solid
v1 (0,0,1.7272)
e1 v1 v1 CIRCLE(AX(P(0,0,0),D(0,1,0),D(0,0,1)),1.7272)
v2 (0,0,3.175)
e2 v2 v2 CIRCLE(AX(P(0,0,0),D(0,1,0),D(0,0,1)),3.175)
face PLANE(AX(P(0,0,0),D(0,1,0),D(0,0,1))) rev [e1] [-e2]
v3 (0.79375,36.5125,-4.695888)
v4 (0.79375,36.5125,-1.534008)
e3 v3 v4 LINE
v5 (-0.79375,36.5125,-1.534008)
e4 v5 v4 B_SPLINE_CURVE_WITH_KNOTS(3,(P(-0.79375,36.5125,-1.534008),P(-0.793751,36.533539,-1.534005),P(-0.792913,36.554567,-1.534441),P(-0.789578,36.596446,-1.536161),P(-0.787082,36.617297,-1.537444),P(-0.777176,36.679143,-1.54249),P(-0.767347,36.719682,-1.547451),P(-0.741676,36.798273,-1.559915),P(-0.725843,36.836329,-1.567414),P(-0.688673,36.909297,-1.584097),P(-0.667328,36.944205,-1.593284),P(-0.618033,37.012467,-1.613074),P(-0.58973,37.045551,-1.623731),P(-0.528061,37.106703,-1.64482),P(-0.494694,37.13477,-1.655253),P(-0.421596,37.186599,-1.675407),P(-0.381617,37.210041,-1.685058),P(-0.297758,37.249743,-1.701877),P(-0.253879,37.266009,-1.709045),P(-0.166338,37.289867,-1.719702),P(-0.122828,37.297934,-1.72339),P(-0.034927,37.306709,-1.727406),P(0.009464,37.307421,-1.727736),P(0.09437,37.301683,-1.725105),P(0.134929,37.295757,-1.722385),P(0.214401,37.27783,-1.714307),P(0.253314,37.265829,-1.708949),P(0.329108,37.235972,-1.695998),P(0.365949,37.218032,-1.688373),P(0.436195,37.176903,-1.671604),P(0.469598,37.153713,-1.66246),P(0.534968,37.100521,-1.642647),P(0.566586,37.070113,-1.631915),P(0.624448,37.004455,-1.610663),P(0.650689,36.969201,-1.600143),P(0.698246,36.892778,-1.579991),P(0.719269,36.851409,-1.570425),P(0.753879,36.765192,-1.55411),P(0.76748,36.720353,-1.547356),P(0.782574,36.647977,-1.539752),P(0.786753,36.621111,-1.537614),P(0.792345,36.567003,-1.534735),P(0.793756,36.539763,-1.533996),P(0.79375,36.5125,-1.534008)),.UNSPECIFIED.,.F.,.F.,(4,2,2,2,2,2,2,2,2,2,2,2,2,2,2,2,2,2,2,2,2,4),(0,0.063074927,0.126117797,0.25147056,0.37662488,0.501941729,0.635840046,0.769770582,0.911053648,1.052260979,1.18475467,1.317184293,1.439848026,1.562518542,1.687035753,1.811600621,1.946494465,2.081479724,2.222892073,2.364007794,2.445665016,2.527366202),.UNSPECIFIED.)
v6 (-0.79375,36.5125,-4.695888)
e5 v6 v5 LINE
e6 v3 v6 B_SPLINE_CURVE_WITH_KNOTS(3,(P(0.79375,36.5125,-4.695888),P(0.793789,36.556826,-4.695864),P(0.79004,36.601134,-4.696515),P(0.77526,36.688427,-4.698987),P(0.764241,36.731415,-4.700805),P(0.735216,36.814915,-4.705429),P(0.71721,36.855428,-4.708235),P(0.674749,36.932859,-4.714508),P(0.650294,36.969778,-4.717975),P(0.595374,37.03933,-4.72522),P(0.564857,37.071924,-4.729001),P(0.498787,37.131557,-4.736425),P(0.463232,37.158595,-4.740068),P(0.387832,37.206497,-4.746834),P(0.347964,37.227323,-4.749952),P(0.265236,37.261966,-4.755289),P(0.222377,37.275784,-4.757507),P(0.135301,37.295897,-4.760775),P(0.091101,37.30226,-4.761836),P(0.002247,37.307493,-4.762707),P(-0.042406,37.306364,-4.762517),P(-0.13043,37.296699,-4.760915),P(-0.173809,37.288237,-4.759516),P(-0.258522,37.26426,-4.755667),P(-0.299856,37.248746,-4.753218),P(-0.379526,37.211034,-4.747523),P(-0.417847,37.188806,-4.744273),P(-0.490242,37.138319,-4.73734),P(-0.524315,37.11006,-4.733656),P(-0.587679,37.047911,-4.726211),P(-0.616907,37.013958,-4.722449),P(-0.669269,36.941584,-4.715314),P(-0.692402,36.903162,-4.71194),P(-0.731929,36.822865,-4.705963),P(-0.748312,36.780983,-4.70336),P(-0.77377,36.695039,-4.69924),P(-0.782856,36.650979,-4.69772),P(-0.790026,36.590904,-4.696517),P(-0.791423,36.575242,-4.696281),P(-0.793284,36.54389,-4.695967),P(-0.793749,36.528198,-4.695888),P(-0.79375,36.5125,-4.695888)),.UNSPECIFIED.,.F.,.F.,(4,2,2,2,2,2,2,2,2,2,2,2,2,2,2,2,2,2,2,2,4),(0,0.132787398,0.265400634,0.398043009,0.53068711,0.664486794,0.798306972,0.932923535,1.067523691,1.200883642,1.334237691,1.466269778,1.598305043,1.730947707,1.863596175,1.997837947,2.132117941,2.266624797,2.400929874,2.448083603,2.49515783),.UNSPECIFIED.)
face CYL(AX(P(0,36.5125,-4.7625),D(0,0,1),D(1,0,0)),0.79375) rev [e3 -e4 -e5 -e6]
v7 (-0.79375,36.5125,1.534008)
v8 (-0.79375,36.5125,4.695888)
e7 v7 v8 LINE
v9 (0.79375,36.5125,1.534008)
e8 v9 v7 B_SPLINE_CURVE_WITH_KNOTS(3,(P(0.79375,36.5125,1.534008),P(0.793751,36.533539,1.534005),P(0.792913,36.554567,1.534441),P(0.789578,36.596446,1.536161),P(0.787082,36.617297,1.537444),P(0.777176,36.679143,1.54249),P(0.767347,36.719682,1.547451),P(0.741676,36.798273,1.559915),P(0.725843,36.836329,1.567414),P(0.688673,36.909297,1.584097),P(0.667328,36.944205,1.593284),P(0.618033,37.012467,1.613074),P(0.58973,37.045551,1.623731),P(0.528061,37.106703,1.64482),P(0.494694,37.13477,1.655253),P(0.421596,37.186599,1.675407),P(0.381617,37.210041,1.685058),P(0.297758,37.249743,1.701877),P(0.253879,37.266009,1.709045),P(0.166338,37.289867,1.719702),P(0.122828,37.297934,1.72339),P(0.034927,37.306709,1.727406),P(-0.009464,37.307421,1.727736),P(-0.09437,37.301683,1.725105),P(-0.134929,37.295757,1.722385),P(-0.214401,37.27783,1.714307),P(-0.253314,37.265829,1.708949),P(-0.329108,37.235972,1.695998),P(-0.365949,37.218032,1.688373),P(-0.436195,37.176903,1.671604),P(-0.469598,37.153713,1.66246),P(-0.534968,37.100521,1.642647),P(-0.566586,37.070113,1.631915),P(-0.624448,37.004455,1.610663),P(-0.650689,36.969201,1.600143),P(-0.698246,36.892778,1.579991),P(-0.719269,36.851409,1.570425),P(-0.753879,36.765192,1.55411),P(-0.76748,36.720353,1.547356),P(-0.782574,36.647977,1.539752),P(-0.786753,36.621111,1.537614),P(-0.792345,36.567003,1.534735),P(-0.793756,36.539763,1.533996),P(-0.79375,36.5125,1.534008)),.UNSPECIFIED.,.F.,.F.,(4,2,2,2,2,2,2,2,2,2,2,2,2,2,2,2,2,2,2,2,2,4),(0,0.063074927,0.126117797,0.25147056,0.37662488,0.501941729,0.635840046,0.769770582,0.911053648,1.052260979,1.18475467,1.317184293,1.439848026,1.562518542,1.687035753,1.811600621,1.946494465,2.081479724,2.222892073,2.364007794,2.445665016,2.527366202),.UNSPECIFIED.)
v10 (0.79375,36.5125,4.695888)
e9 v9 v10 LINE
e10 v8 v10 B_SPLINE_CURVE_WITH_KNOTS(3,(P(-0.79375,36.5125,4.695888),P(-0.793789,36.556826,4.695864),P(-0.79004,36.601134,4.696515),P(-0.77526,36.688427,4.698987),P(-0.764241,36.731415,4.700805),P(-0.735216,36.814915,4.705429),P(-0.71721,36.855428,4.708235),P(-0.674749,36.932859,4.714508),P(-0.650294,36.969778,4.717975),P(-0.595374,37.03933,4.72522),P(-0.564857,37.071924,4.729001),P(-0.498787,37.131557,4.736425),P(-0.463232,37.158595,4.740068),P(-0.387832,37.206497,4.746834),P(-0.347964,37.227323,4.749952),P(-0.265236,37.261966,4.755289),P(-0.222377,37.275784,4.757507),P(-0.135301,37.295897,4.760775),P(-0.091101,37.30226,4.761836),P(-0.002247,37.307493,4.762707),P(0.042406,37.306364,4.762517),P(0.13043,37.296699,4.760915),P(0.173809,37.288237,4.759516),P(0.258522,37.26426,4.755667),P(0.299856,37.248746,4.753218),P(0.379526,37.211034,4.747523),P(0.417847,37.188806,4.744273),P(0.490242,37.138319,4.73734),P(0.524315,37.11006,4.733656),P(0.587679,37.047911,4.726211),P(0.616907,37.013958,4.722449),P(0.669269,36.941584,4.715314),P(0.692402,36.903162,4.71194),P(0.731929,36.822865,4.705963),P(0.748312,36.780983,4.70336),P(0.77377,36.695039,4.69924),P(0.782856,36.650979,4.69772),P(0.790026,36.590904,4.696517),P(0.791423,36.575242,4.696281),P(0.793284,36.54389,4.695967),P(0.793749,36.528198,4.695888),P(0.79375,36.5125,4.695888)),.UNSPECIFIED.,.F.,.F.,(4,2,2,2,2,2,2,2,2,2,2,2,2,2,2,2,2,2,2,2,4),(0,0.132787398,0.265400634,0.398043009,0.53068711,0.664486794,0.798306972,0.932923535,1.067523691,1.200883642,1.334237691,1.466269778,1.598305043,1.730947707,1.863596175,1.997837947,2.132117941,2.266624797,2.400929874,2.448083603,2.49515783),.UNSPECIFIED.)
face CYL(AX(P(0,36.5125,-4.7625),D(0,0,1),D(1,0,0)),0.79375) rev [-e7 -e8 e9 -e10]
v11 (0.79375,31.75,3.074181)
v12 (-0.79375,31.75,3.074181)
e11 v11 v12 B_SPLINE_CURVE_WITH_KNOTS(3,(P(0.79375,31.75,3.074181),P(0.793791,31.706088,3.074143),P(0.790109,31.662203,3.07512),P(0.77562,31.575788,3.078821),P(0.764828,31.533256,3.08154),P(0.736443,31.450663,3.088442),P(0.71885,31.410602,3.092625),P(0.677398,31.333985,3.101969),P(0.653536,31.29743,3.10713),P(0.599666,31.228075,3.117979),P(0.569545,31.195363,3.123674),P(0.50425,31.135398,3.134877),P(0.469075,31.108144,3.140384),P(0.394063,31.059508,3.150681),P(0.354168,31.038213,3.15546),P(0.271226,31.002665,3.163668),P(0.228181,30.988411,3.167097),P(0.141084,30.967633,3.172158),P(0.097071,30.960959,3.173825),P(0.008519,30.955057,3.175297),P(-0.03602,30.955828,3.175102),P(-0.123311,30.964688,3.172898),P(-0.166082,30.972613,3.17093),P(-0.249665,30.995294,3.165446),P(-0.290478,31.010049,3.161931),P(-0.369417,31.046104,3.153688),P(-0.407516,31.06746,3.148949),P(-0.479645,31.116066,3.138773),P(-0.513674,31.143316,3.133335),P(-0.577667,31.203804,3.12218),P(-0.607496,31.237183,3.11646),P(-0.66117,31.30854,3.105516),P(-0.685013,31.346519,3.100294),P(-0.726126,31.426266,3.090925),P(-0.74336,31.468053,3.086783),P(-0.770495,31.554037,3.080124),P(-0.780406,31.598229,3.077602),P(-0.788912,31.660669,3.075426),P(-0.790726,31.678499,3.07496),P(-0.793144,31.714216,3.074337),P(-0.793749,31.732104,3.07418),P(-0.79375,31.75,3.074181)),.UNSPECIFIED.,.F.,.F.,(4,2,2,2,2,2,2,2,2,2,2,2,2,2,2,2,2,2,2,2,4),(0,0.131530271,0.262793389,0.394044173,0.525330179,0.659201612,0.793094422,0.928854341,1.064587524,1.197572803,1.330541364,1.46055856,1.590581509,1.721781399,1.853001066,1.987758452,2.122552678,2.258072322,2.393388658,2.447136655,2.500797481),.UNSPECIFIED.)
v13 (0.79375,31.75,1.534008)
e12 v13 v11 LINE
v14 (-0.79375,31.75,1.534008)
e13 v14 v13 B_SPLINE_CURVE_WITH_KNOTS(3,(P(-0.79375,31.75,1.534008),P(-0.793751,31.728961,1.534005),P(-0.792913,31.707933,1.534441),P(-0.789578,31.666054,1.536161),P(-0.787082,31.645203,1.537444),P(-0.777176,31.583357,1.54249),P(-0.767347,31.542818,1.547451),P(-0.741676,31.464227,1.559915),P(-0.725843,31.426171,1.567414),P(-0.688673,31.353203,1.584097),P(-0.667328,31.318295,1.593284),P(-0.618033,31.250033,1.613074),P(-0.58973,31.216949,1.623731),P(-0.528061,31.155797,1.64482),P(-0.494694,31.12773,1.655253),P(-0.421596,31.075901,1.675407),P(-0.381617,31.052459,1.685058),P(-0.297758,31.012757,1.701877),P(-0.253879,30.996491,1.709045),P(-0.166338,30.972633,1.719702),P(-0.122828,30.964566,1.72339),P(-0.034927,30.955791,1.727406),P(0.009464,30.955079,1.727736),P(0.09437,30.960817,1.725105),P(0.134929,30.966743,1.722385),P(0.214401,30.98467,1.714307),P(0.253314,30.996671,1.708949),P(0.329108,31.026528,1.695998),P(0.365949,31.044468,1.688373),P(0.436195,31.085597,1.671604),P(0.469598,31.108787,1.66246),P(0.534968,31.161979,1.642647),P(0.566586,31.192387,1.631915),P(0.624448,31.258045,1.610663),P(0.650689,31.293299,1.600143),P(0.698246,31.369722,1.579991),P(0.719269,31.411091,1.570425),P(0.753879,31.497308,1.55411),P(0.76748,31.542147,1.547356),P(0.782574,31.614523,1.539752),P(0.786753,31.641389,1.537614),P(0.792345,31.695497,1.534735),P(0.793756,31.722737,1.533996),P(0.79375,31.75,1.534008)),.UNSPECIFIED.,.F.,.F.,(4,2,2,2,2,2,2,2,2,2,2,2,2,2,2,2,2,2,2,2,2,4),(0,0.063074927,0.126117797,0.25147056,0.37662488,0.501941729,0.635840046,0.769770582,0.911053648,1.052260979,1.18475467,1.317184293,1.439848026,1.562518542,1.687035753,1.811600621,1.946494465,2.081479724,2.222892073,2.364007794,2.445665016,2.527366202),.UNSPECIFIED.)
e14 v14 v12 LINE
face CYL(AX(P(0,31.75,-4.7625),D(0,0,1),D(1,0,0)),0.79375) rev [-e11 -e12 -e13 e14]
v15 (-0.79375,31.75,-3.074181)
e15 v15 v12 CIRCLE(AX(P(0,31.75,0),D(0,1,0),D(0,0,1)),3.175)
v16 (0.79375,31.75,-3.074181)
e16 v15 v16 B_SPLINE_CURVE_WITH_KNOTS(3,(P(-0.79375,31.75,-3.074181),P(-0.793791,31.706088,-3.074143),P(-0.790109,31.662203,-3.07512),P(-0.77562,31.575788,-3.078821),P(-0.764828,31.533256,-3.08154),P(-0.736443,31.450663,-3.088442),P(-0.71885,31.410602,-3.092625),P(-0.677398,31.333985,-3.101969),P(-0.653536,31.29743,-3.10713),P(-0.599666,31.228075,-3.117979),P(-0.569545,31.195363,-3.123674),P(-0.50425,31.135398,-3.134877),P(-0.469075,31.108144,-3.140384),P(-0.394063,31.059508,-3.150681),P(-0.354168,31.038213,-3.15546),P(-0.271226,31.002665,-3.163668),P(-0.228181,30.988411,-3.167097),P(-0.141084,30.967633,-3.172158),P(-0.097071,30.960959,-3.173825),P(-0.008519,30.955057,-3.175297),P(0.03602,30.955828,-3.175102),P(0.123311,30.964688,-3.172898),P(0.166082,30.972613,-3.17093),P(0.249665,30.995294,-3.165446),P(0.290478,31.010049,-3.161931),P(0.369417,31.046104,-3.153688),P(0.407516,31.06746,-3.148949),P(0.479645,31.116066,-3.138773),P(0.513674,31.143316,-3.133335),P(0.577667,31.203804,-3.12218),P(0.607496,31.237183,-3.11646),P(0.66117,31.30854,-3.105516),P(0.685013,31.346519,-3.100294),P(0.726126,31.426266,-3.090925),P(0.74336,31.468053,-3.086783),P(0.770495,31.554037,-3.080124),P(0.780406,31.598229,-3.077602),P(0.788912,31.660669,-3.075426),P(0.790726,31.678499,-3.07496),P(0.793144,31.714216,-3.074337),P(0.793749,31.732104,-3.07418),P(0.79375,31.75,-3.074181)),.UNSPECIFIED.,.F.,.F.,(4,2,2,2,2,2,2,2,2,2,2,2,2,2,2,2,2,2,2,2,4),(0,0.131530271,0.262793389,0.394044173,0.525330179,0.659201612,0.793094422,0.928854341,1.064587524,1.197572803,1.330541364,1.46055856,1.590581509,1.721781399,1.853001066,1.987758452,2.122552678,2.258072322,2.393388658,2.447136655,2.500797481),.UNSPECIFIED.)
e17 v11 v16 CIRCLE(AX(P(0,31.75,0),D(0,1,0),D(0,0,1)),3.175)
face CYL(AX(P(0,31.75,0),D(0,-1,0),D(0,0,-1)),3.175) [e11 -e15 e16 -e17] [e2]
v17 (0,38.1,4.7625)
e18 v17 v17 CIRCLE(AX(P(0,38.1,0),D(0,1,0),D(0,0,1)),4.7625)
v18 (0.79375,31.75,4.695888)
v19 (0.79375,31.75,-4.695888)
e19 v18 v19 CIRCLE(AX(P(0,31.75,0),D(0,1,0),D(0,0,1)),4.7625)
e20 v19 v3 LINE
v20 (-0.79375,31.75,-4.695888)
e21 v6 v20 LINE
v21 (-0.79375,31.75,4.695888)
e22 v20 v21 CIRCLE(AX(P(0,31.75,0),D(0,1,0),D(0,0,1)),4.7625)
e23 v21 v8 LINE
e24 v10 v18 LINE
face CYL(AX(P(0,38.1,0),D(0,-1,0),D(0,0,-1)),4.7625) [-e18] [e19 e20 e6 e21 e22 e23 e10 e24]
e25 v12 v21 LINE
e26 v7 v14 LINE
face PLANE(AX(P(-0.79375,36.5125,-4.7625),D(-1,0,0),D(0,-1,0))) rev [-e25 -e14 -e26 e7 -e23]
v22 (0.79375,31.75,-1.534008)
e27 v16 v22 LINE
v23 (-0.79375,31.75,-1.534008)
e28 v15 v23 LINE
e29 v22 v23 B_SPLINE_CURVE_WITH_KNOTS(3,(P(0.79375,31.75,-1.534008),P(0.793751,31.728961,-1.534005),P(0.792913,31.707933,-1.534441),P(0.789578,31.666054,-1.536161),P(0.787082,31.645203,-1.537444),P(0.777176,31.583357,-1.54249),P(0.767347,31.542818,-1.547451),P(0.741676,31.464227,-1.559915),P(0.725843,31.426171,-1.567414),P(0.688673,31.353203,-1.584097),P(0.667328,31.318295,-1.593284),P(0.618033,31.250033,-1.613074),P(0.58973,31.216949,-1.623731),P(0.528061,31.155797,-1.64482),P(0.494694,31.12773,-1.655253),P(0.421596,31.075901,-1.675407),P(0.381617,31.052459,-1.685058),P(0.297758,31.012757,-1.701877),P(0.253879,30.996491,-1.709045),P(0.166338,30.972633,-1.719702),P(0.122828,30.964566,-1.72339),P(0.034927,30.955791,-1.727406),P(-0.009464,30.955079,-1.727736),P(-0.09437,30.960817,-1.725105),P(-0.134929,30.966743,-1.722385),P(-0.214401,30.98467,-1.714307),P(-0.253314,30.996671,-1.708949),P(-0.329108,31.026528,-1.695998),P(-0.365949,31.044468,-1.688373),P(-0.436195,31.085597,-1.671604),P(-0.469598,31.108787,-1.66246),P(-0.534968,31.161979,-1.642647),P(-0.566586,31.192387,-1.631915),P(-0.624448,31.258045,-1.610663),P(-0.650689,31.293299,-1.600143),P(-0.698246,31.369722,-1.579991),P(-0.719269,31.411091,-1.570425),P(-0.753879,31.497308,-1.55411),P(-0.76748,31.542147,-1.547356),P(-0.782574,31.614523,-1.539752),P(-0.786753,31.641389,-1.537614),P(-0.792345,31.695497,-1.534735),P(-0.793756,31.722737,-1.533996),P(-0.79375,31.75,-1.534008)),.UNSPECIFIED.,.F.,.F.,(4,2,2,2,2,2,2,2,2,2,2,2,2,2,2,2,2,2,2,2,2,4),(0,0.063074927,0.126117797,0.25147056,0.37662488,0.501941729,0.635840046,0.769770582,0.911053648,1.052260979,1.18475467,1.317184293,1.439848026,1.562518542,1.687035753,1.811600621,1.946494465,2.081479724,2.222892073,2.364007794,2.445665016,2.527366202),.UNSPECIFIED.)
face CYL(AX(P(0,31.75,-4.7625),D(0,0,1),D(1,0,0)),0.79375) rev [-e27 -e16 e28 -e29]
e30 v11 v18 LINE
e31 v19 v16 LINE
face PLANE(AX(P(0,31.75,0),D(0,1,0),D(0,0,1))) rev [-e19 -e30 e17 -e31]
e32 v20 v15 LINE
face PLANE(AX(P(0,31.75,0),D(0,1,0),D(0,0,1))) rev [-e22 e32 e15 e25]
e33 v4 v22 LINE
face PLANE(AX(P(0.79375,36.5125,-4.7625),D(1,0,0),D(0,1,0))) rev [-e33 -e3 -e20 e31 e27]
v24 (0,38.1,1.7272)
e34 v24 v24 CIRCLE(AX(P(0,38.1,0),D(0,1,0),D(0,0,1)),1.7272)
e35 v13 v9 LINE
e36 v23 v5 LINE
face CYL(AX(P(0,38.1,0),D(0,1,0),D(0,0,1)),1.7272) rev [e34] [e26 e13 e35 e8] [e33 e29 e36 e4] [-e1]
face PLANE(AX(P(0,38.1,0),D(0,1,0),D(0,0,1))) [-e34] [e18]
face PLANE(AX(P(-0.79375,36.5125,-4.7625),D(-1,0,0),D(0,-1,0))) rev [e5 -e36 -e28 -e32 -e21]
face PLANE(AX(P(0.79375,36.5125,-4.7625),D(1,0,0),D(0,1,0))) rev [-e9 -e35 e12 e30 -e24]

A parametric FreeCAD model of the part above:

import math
import FreeCAD as App
import Part
import Sketcher
from FreeCAD import Vector
Q = App.Units.Quantity

doc = App.newDocument("Part")
body = doc.addObject("PartDesign::Body", "Body")

# Sketch on XZ plane
sketch1 = doc.addObject("Sketcher::SketchObject", "Sketch")
body.addObject(sketch1)
sketch1.AttachmentSupport = (doc.XZ_Plane, [""])
sketch1.MapMode = "FlatFace"
sketch1.addGeometry(Part.Circle(Vector(0, 0, 0), Vector(0, 0, 1), 3.2), False)
sketch1.addConstraint(Sketcher.Constraint("Coincident", 0, 3, -1, 1))
sketch1.addConstraint(Sketcher.Constraint("Diameter", 0, Q("0.25 in")))
pad1 = doc.addObject("PartDesign::Pad", "Pad")
body.addObject(pad1)
pad1.Profile = sketch1
pad1.Length = Q("1.25 in")
pad1.Reversed = True

# Sketch on XZ plane
sketch2 = doc.addObject("Sketcher::SketchObject", "Sketch001")
body.addObject(sketch2)
sketch2.AttachmentSupport = (doc.XZ_Plane, [""])
sketch2.MapMode = "FlatFace"
sketch2.AttachmentOffset = App.Placement(Vector(0, 0, -1.25 * 25.4), App.Rotation())
sketch2.addGeometry(Part.Circle(Vector(0, 0, 0), Vector(0, 0, 1), 4.8), False)
sketch2.addConstraint(Sketcher.Constraint("Coincident", 0, 3, -1, 1))
sketch2.addConstraint(Sketcher.Constraint("Diameter", 0, Q("0.375 in")))
pad2 = doc.addObject("PartDesign::Pad", "Pad001")
body.addObject(pad2)
pad2.Profile = sketch2
pad2.Length = Q("0.25 in")
pad2.Reversed = True

# Sketch on XZ plane
sketch3 = doc.addObject("Sketcher::SketchObject", "Sketch002")
body.addObject(sketch3)
sketch3.AttachmentSupport = (doc.XZ_Plane, [""])
sketch3.MapMode = "FlatFace"
sketch3.AttachmentOffset = App.Placement(Vector(0, 0, -1.5 * 25.4), App.Rotation())
sketch3.addGeometry(Part.Circle(Vector(0, 0, 0), Vector(0, 0, 1), 1.7), False)
sketch3.addConstraint(Sketcher.Constraint("Coincident", 0, 3, -1, 1))
sketch3.addConstraint(Sketcher.Constraint("Diameter", 0, Q("0.136 in")))
doc.recompute()
hole = doc.addObject("PartDesign::Hole", "Hole")
body.addObject(hole)
hole.Profile = sketch3
hole.ThreadType = "None"
hole.Diameter = Q("0.136 in")
hole.DepthType = "ThroughAll"
hole.Reversed = True

# Sketch on XY plane
sketch4 = doc.addObject("Sketcher::SketchObject", "Sketch003")
body.addObject(sketch4)
sketch4.AttachmentSupport = (doc.XY_Plane, [""])
sketch4.MapMode = "FlatFace"
sketch4.addGeometry(Part.LineSegment(Vector(0.8, 31.8, 0), Vector(0.8, 36.5, 0)), False)
sketch4.addGeometry(Part.ArcOfCircle(Part.Circle(Vector(0, 36.5, 0), Vector(0, 0, 1), 0.8), math.radians(0), math.radians(180)), False)
sketch4.addGeometry(Part.LineSegment(Vector(-0.8, 36.5, 0), Vector(-0.8, 31.8, 0)), False)
sketch4.addGeometry(Part.ArcOfCircle(Part.Circle(Vector(0, 31.8, 0), Vector(0, 0, 1), 0.8), math.radians(180), math.radians(360)), False)
sketch4.addConstraint(Sketcher.Constraint("Tangent", 0, 2, 1, 1))
sketch4.addConstraint(Sketcher.Constraint("Tangent", 1, 2, 2, 1))
sketch4.addConstraint(Sketcher.Constraint("Tangent", 2, 2, 3, 1))
sketch4.addConstraint(Sketcher.Constraint("Tangent", 3, 2, 0, 1))
sketch4.addConstraint(Sketcher.Constraint("Vertical", 0))
sketch4.addConstraint(Sketcher.Constraint("Vertical", 2))
sketch4.addConstraint(Sketcher.Constraint("PointOnObject", 1, 3, -2))
sketch4.addConstraint(Sketcher.Constraint("Radius", 1, Q("0.03125 in")))
sketch4.addConstraint(Sketcher.Constraint("DistanceY", 0, 1, 0, 2, Q("0.1875 in")))
sketch4.addConstraint(Sketcher.Constraint("DistanceY", -1, 1, 3, 3, Q("1.25 in")))
pocket1 = doc.addObject("PartDesign::Pocket", "Pocket")
body.addObject(pocket1)
pocket1.Profile = sketch4
pocket1.Type = "ThroughAll"
pocket1.Midplane = True

doc.recompute()
